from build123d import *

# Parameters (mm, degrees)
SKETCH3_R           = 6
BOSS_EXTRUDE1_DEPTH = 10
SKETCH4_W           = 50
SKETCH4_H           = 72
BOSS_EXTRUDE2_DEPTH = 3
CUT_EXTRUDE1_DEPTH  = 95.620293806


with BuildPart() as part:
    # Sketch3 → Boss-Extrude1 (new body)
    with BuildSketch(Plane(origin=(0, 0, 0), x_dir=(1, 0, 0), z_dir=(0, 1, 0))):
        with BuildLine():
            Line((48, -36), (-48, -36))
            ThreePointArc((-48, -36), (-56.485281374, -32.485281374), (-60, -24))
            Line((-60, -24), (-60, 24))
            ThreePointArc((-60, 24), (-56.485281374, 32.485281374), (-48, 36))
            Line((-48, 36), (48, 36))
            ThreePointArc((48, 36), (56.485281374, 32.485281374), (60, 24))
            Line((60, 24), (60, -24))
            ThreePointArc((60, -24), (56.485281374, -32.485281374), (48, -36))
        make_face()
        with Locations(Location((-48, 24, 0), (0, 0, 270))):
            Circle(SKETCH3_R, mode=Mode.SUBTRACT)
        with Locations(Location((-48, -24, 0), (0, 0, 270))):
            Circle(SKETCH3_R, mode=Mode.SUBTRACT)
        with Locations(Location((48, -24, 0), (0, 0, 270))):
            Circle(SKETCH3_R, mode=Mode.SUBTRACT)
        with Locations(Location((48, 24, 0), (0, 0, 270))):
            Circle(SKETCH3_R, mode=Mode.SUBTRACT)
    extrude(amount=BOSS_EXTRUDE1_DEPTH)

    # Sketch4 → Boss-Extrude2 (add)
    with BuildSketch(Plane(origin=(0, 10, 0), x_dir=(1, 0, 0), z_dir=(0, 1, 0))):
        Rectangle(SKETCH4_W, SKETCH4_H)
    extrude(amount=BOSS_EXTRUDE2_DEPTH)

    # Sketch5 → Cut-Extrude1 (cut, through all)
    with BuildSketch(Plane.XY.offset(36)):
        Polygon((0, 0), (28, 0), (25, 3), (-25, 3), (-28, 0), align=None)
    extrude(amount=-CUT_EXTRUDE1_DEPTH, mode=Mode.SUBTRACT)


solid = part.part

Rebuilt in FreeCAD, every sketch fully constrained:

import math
import FreeCAD as App
import Part
import Sketcher
from FreeCAD import Vector
Q = App.Units.Quantity

doc = App.newDocument("Part")
body = doc.addObject("PartDesign::Body", "Body")

# Sketch on XZ plane
sketch1 = doc.addObject("Sketcher::SketchObject", "Sketch")
body.addObject(sketch1)
sketch1.AttachmentSupport = (doc.XZ_Plane, [""])
sketch1.MapMode = "FlatFace"
sketch1.addGeometry(Part.LineSegment(Vector(-48, 36, 0), Vector(48, 36, 0)), False)
sketch1.addGeometry(Part.ArcOfCircle(Part.Circle(Vector(48, 24, 0), Vector(0, 0, 1), 12), math.radians(0), math.radians(90)), False)
sketch1.addGeometry(Part.LineSegment(Vector(60, 24, 0), Vector(60, -24, 0)), False)
sketch1.addGeometry(Part.ArcOfCircle(Part.Circle(Vector(48, -24, 0), Vector(0, 0, 1), 12), math.radians(-90), math.radians(0)), False)
sketch1.addGeometry(Part.LineSegment(Vector(48, -36, 0), Vector(-48, -36, 0)), False)
sketch1.addGeometry(Part.ArcOfCircle(Part.Circle(Vector(-48, -24, 0), Vector(0, 0, 1), 12), math.radians(-180), math.radians(-90)), False)
sketch1.addGeometry(Part.LineSegment(Vector(-60, -24, 0), Vector(-60, 24, 0)), False)
sketch1.addGeometry(Part.ArcOfCircle(Part.Circle(Vector(-48, 24, 0), Vector(0, 0, 1), 12), math.radians(90), math.radians(180)), False)
sketch1.addGeometry(Part.Circle(Vector(48, 24, 0), Vector(0, 0, 1), 6), False)
sketch1.addGeometry(Part.Circle(Vector(-48, 24, 0), Vector(0, 0, 1), 6), False)
sketch1.addGeometry(Part.Circle(Vector(48, -24, 0), Vector(0, 0, 1), 6), False)
sketch1.addGeometry(Part.Circle(Vector(-48, -24, 0), Vector(0, 0, 1), 6), False)
sketch1.addConstraint(Sketcher.Constraint("Tangent", 0, 2, 1, 2))
sketch1.addConstraint(Sketcher.Constraint("Tangent", 1, 1, 2, 1))
sketch1.addConstraint(Sketcher.Constraint("Tangent", 2, 2, 3, 2))
sketch1.addConstraint(Sketcher.Constraint("Tangent", 3, 1, 4, 1))
sketch1.addConstraint(Sketcher.Constraint("Tangent", 4, 2, 5, 2))
sketch1.addConstraint(Sketcher.Constraint("Tangent", 5, 1, 6, 1))
sketch1.addConstraint(Sketcher.Constraint("Tangent", 6, 2, 7, 2))
sketch1.addConstraint(Sketcher.Constraint("Tangent", 7, 1, 0, 1))
sketch1.addConstraint(Sketcher.Constraint("Horizontal", 0))
sketch1.addConstraint(Sketcher.Constraint("Vertical", 2))
sketch1.addConstraint(Sketcher.Constraint("Horizontal", 4))
sketch1.addConstraint(Sketcher.Constraint("Vertical", 6))
sketch1.addConstraint(Sketcher.Constraint("Coincident", 8, 3, 1, 3))
sketch1.addConstraint(Sketcher.Constraint("Coincident", 9, 3, 7, 3))
sketch1.addConstraint(Sketcher.Constraint("Coincident", 10, 3, 3, 3))
sketch1.addConstraint(Sketcher.Constraint("Coincident", 11, 3, 5, 3))
sketch1.addConstraint(Sketcher.Constraint("Equal", 1, 3))
sketch1.addConstraint(Sketcher.Constraint("Equal", 3, 5))
sketch1.addConstraint(Sketcher.Constraint("Equal", 5, 7))
sketch1.addConstraint(Sketcher.Constraint("Equal", 8, 9))
sketch1.addConstraint(Sketcher.Constraint("Equal", 9, 10))
sketch1.addConstraint(Sketcher.Constraint("Equal", 10, 11))
sketch1.addConstraint(Sketcher.Constraint("Symmetric", 1, 3, 5, 3, -1, 1))
sketch1.addConstraint(Sketcher.Constraint("Diameter", 8, Q("12 mm")))
sketch1.addConstraint(Sketcher.Constraint("Radius", 1, Q("12 mm")))
sketch1.addConstraint(Sketcher.Constraint("DistanceX", 0, 1, 0, 2, Q("96 mm")))
sketch1.addConstraint(Sketcher.Constraint("DistanceY", 2, 2, 2, 1, Q("48 mm")))
pad1 = doc.addObject("PartDesign::Pad", "Pad")
body.addObject(pad1)
pad1.Profile = sketch1
pad1.Length = 10
pad1.Reversed = True

# Sketch on XZ plane
sketch2 = doc.addObject("Sketcher::SketchObject", "Sketch001")
body.addObject(sketch2)
sketch2.AttachmentSupport = (doc.XZ_Plane, [""])
sketch2.MapMode = "FlatFace"
sketch2.AttachmentOffset = App.Placement(Vector(0, 0, -10), App.Rotation())
sketch2.addGeometry(Part.LineSegment(Vector(-25, -36, 0), Vector(-25, 36, 0)), False)
sketch2.addGeometry(Part.LineSegment(Vector(-25, 36, 0), Vector(25, 36, 0)), False)
sketch2.addGeometry(Part.LineSegment(Vector(25, 36, 0), Vector(25, -36, 0)), False)
sketch2.addGeometry(Part.LineSegment(Vector(25, -36, 0), Vector(-25, -36, 0)), False)
sketch2.addConstraint(Sketcher.Constraint("Coincident", 0, 2, 1, 1))
sketch2.addConstraint(Sketcher.Constraint("Coincident", 1, 2, 2, 1))
sketch2.addConstraint(Sketcher.Constraint("Coincident", 2, 2, 3, 1))
sketch2.addConstraint(Sketcher.Constraint("Coincident", 3, 2, 0, 1))
sketch2.addConstraint(Sketcher.Constraint("Vertical", 0))
sketch2.addConstraint(Sketcher.Constraint("Horizontal", 1))
sketch2.addConstraint(Sketcher.Constraint("Vertical", 2))
sketch2.addConstraint(Sketcher.Constraint("Horizontal", 3))
sketch2.addConstraint(Sketcher.Constraint("Symmetric", 0, 2, 2, 2, -1, 1))
sketch2.addConstraint(Sketcher.Constraint("DistanceX", 1, 1, 1, 2, Q("50 mm")))
sketch2.addConstraint(Sketcher.Constraint("DistanceY", 0, 1, 0, 2, Q("72 mm")))
pad2 = doc.addObject("PartDesign::Pad", "Pad001")
body.addObject(pad2)
pad2.Profile = sketch2
pad2.Length = 3
pad2.Reversed = True

# Sketch on XY plane
sketch3 = doc.addObject("Sketcher::SketchObject", "Sketch002")
body.addObject(sketch3)
sketch3.AttachmentSupport = (doc.XY_Plane, [""])
sketch3.MapMode = "FlatFace"
sketch3.AttachmentOffset = App.Placement(Vector(0, 0, 36), App.Rotation())
sketch3.addGeometry(Part.LineSegment(Vector(28, 0, 0), Vector(25, 3, 0)), False)
sketch3.addGeometry(Part.LineSegment(Vector(25, 3, 0), Vector(-25, 3, 0)), False)
sketch3.addGeometry(Part.LineSegment(Vector(-25, 3, 0), Vector(-28, 0, 0)), False)
sketch3.addGeometry(Part.LineSegment(Vector(-28, 0, 0), Vector(28, 0, 0)), False)
sketch3.addConstraint(Sketcher.Constraint("Coincident", 0, 2, 1, 1))
sketch3.addConstraint(Sketcher.Constraint("Coincident", 1, 2, 2, 1))
sketch3.addConstraint(Sketcher.Constraint("Coincident", 2, 2, 3, 1))
sketch3.addConstraint(Sketcher.Constraint("Coincident", 3, 2, 0, 1))
sketch3.addConstraint(Sketcher.Constraint("Horizontal", 1))
sketch3.addConstraint(Sketcher.Constraint("Horizontal", 3))
sketch3.addConstraint(Sketcher.Constraint("Symmetric", 2, 2, 3, 2, -1, 1))
sketch3.addConstraint(Sketcher.Constraint("Perpendicular", 0, 2))
sketch3.addConstraint(Sketcher.Constraint("Equal", 0, 2))
sketch3.addConstraint(Sketcher.Constraint("DistanceX", 1, 2, 1, 1, Q("50 mm")))
sketch3.addConstraint(Sketcher.Constraint("DistanceX", 3, 1, 3, 2, Q("56 mm")))
pocket1 = doc.addObject("PartDesign::Pocket", "Pocket")
body.addObject(pocket1)
pocket1.Profile = sketch3
pocket1.Type = "ThroughAll"

doc.recompute()
